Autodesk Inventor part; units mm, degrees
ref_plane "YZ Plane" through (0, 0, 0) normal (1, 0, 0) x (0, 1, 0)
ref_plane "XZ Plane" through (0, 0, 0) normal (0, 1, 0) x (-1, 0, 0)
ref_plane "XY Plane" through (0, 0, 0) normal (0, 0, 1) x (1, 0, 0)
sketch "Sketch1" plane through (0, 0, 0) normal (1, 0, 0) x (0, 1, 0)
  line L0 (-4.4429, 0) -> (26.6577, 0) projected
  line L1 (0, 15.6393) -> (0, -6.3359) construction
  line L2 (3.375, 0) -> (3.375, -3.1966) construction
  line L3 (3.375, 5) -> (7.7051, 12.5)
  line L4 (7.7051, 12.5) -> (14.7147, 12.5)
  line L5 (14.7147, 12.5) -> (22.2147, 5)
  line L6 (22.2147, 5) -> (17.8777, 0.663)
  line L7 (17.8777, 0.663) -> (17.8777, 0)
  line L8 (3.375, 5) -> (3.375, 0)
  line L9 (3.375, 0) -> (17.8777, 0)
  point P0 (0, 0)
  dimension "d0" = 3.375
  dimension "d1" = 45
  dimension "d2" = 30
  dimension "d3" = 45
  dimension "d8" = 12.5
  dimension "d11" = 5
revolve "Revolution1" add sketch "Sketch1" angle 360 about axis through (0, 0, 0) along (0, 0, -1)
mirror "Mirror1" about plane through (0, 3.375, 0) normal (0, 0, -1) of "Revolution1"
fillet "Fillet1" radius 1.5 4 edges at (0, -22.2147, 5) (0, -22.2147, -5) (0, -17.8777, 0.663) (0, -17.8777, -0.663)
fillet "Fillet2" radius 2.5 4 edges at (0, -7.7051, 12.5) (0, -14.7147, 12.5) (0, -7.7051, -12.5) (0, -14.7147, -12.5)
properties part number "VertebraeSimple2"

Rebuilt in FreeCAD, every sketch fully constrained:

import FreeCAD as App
import Part
import Sketcher
Q = App.Units.Quantity


def edges_at(feature, points):
    """Names of the edges that pass closest to the given points."""
    edges = feature.Shape.Edges
    near = lambda p: min(range(len(edges)), key=lambda i: edges[i].distToShape(Part.Vertex(*p))[0])
    return sorted({f"Edge{near(p) + 1}" for p in points})

doc = App.newDocument("Part")
body = doc.addObject("PartDesign::Body", "Body")

sketch1 = body.newObject("Sketcher::SketchObject", "Sketch")
sketch1.AttachmentSupport = (doc.getObject("YZ_Plane"), [""])
sketch1.MapMode = "FlatFace"
sketch1.addGeometry([
    Part.LineSegment(App.Vector(3.4, 5, 0), App.Vector(3.4, 0, 0)),
    Part.LineSegment(App.Vector(3.4, 0, 0), App.Vector(17.9, 0, 0)),
    Part.LineSegment(App.Vector(17.9, 0, 0), App.Vector(17.9, 0.7, 0)),
    Part.LineSegment(App.Vector(17.9, 0.7, 0), App.Vector(22.2, 5, 0)),
    Part.LineSegment(App.Vector(22.2, 5, 0), App.Vector(14.7, 12.5, 0)),
    Part.LineSegment(App.Vector(14.7, 12.5, 0), App.Vector(7.7, 12.5, 0)),
    Part.LineSegment(App.Vector(7.7, 12.5, 0), App.Vector(3.4, 5, 0)),
], False)
sketch1.addConstraint([
    Sketcher.Constraint("Coincident", 0, 2, 1, 1),
    Sketcher.Constraint("Coincident", 1, 2, 2, 1),
    Sketcher.Constraint("Coincident", 2, 2, 3, 1),
    Sketcher.Constraint("Coincident", 3, 2, 4, 1),
    Sketcher.Constraint("Coincident", 4, 2, 5, 1),
    Sketcher.Constraint("Coincident", 5, 2, 6, 1),
    Sketcher.Constraint("Coincident", 6, 2, 0, 1),
    Sketcher.Constraint("Vertical", 0),
    Sketcher.Constraint("Horizontal", 1),
    Sketcher.Constraint("Vertical", 2),
    Sketcher.Constraint("Horizontal", 5),
    Sketcher.Constraint("PointOnObject", 0, 2, -1),
    Sketcher.Constraint("Perpendicular", 3, 4),
    Sketcher.Constraint("Horizontal", 3, 2, 6, 2),
    Sketcher.Constraint("DistanceY", 0, 2, 0, 1, Q("5 mm")),
    Sketcher.Constraint("Angle", 3, Q("45 deg")),
    Sketcher.Constraint("DistanceY", -1, 1, 4, 2, Q("12.5 mm")),
    Sketcher.Constraint("Angle", 6, Q("-119.9998 deg")),
    Sketcher.Constraint("DistanceX", -1, 1, 0, 2, Q("3.375 mm")),
    Sketcher.Constraint("DistanceY", 2, 1, 2, 2, Q("0.663 mm")),
    Sketcher.Constraint("DistanceX", 1, 1, 1, 2, Q("14.5027 mm")),
])
revolution = body.newObject("PartDesign::Revolution", "Revolution")
revolution.Profile = sketch1
revolution.ReferenceAxis = (sketch1, ["V_Axis"])
revolution.Angle = 360
doc.recompute()

mirrored = body.newObject("PartDesign::Mirrored", "Mirrored")
mirrored.Originals = [revolution]
mirrored.MirrorPlane = (doc.getObject("XY_Plane"), [""])
body.Tip = mirrored
doc.recompute()

fillet = body.newObject("PartDesign::Fillet", "Fillet")
fillet.Base = (mirrored, edges_at(mirrored, [
    (0, -22.215, 5),
    (0, -22.215, -5),
    (0, -17.878, 0.663),
    (0, -17.878, -0.663),
]))
fillet.Radius = 1.5
doc.recompute()

fillet2 = body.newObject("PartDesign::Fillet", "Fillet001")
fillet2.Base = (fillet, edges_at(fillet, [
    (0, -7.705, 12.5),
    (0, -14.715, 12.5),
    (0, -7.705, -12.5),
    (0, -14.715, -12.5),
]))
fillet2.Radius = 2.5

doc.recompute()
